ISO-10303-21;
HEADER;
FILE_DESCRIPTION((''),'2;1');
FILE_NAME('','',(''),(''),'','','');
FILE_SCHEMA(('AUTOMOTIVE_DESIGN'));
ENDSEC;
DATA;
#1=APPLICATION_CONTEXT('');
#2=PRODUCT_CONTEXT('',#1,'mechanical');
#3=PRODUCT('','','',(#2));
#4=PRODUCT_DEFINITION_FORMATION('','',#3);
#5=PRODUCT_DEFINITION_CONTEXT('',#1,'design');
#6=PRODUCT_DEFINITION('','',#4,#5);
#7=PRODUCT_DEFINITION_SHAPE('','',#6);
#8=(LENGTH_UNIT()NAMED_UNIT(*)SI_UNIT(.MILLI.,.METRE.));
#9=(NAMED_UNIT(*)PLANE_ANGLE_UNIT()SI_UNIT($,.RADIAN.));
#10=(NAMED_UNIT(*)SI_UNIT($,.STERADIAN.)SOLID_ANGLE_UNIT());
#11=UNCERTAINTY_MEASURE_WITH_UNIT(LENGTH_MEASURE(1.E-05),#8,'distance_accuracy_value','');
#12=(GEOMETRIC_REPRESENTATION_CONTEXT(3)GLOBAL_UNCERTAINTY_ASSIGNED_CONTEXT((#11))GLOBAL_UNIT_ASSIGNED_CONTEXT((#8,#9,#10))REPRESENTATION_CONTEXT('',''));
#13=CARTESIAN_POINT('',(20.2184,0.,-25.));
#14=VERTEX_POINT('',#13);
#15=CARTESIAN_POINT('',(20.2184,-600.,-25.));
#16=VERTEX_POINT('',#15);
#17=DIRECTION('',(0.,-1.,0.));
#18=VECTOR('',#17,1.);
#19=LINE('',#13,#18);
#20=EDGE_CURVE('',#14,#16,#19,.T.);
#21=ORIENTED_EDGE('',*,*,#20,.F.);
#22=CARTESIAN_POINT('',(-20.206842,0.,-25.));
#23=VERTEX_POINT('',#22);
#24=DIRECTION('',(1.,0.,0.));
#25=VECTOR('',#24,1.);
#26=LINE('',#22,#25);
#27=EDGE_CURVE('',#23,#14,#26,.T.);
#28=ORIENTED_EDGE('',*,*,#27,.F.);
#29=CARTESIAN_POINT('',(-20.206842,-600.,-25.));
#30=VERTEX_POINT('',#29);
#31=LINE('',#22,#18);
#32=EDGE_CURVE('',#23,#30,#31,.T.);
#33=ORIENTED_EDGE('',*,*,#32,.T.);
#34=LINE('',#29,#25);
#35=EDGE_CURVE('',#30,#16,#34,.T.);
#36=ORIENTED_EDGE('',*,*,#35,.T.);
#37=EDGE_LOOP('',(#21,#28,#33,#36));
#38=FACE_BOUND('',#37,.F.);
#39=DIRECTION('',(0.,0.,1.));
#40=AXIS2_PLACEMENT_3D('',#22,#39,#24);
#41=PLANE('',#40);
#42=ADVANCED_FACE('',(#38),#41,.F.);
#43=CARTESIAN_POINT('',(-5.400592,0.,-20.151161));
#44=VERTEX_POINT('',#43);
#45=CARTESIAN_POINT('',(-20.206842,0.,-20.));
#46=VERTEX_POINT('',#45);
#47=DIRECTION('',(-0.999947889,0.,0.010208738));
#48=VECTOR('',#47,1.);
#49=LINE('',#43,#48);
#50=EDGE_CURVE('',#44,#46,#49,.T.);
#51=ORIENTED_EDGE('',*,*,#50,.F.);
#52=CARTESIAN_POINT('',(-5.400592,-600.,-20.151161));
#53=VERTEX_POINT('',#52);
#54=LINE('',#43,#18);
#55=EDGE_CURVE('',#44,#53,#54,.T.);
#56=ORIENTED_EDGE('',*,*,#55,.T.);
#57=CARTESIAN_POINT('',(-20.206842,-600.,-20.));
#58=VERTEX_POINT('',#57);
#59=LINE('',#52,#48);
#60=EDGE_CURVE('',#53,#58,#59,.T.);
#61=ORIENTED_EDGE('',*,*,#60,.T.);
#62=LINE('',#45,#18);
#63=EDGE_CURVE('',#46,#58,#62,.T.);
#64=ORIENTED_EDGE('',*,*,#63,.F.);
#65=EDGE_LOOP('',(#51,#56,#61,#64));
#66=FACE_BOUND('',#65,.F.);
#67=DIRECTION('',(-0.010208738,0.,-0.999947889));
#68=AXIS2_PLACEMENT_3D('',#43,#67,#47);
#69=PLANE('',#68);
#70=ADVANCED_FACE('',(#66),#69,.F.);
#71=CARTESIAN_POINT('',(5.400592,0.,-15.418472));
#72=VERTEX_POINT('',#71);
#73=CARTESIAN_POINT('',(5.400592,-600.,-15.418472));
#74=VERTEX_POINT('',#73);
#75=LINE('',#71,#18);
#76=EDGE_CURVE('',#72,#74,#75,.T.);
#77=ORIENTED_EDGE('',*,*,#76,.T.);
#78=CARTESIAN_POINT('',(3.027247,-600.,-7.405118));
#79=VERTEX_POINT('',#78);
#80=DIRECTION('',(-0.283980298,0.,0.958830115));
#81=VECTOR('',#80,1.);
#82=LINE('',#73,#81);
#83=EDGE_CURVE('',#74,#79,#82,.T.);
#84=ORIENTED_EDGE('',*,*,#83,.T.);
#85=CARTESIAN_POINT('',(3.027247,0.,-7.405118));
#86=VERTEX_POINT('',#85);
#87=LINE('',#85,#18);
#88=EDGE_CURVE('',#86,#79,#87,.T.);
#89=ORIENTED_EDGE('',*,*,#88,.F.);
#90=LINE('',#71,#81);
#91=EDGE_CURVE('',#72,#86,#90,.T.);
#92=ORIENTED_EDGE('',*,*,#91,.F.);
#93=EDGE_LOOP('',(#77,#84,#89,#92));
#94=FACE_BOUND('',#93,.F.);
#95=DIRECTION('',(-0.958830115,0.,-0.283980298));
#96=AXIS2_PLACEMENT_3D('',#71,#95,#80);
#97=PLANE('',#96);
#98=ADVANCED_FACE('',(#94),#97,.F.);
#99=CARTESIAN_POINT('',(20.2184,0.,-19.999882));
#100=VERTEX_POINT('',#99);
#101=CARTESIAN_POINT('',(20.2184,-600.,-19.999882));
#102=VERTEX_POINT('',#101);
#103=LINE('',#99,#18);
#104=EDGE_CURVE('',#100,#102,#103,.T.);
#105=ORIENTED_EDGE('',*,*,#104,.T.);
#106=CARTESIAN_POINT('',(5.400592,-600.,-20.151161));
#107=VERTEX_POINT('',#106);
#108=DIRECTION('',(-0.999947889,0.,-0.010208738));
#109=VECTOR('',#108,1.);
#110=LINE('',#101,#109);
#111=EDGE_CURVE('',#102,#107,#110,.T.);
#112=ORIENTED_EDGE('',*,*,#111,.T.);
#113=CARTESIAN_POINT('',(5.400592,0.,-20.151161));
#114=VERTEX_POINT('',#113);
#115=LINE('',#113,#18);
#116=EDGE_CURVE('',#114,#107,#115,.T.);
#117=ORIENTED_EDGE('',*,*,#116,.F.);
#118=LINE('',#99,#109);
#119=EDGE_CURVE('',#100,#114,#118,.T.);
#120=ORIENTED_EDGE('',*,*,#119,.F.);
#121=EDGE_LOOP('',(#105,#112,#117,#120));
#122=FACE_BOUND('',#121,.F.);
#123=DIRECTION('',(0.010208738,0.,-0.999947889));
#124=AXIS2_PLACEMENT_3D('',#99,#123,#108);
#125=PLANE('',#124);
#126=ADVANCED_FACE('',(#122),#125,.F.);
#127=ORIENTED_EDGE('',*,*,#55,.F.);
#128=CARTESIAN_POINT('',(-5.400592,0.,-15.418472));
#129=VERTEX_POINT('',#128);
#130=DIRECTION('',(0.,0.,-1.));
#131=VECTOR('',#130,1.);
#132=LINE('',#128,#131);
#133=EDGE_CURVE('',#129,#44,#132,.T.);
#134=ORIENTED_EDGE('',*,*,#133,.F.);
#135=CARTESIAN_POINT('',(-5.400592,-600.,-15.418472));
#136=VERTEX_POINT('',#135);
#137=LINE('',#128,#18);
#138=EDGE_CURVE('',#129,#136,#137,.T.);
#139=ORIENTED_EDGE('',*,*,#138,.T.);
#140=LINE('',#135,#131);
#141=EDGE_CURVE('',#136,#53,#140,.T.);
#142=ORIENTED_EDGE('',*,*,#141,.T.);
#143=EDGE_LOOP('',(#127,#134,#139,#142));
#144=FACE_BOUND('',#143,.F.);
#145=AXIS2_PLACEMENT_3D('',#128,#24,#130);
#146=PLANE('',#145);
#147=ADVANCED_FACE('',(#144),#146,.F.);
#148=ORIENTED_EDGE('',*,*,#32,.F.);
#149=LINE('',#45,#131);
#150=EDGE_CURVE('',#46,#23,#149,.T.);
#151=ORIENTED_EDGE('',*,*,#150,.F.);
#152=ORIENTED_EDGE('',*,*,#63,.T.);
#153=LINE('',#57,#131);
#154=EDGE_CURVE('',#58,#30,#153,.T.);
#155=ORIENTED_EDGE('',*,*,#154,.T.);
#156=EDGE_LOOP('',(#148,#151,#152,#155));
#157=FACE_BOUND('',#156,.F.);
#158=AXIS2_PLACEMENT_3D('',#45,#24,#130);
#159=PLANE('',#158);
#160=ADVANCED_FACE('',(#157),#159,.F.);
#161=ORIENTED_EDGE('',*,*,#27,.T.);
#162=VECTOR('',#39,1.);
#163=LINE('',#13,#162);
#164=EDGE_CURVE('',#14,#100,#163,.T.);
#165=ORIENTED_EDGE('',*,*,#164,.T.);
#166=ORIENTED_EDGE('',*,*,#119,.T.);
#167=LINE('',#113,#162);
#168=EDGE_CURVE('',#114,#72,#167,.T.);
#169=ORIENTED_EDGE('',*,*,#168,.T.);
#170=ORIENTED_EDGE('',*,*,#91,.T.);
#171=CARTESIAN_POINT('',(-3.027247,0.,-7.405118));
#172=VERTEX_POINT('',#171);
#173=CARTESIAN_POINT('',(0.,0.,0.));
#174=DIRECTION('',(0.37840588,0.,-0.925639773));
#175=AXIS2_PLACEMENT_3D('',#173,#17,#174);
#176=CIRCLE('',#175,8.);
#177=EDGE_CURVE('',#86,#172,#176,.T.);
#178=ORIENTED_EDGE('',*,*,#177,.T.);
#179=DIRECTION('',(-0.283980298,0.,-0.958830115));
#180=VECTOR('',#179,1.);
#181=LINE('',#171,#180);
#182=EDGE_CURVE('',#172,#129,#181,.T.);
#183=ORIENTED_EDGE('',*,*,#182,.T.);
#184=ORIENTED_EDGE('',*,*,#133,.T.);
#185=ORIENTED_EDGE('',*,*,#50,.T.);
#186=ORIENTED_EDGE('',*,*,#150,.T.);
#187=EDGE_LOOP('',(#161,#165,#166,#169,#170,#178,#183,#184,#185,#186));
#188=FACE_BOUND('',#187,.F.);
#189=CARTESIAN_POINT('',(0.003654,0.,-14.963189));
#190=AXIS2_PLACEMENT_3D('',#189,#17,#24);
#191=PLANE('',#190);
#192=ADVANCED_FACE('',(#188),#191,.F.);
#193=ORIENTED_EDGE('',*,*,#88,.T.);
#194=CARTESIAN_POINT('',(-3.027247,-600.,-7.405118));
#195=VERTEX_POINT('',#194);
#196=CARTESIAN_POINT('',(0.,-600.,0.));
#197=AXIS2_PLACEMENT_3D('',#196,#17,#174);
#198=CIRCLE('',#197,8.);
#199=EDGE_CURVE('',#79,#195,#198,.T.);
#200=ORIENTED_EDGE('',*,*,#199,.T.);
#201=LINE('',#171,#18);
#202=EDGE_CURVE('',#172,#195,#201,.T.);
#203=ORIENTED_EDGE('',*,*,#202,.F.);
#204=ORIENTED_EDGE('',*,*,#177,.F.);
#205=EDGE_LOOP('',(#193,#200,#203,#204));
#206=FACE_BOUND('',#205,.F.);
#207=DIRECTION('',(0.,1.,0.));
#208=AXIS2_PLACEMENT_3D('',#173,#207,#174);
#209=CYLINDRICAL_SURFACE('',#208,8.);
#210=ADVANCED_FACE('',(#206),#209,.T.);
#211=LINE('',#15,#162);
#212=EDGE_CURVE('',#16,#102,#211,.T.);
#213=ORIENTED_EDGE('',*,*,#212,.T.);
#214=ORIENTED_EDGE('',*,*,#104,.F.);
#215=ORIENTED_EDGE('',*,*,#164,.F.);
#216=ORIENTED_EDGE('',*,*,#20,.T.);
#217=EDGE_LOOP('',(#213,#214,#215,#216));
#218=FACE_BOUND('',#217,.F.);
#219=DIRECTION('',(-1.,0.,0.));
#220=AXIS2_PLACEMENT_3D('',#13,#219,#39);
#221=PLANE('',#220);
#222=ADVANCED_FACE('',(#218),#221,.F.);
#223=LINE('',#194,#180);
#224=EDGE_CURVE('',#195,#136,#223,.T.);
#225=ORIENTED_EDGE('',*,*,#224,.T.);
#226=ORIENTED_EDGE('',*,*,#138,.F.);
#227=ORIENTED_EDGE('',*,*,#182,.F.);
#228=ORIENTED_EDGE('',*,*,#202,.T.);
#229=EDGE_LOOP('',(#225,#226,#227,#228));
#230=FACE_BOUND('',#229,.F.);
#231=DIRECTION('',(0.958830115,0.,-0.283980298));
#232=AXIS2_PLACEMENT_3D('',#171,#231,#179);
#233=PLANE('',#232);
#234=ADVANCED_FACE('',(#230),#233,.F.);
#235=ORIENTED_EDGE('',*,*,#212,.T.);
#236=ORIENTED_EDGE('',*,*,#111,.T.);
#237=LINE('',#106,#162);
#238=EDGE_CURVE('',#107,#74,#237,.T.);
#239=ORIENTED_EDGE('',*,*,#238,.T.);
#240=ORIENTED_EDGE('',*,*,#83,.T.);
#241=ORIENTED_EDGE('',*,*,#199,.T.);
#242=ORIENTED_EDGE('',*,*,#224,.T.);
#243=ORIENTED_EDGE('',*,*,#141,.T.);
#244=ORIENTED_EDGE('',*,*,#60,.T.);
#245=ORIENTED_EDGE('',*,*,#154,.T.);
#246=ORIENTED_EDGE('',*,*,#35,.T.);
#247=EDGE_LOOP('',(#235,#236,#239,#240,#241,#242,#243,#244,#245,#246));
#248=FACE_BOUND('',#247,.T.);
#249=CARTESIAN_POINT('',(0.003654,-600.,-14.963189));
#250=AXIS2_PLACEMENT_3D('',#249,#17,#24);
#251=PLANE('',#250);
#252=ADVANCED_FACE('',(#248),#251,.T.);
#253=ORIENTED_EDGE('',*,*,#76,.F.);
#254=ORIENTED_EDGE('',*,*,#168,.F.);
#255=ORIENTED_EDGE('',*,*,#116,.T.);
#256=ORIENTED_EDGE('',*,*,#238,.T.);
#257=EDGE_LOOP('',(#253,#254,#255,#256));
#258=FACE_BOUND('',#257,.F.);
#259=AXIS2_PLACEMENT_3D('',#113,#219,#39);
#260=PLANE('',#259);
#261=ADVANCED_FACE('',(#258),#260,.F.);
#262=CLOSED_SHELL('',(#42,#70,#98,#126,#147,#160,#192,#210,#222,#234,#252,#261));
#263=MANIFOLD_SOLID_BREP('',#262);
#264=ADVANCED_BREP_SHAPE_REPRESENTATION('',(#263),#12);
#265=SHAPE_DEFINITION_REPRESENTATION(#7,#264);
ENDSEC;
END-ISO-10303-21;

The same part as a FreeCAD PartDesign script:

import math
import FreeCAD as App
import Part
import Sketcher
from FreeCAD import Vector
Q = App.Units.Quantity

doc = App.newDocument("Part")
params = doc.addObject("Spreadsheet::Sheet", "Params")
for row, (alias, value) in enumerate([
    ("sketch1_radius", "8 mm"),
    ("sketch1_height", "5 mm"),
    ("pad1_length", "600 mm"),
], start=1):
    params.set(f"A{row}", alias)
    params.set(f"B{row}", "=" + value)
    params.setAlias(f"B{row}", alias)

body = doc.addObject("PartDesign::Body", "Body")

# Sketch on XZ plane
sketch1 = body.newObject("Sketcher::SketchObject", "Sketch")
sketch1.AttachmentSupport = (doc.getObject("XZ_Plane"), [""])
sketch1.MapMode = "FlatFace"
sketch1.addGeometry([
    Part.LineSegment(Vector(5.4, -15.4, 0), Vector(3, -7.4, 0)),  # 0
    Part.ArcOfCircle(Part.Circle(Vector(0, 0, 0), Vector(0, 0, 1), 8), math.radians(-68), math.radians(248)),  # 1
    Part.LineSegment(Vector(-3, -7.4, 0), Vector(-5.4, -15.4, 0)),  # 2
    Part.LineSegment(Vector(-5.4, -15.4, 0), Vector(-5.4, -20.2, 0)),  # 3
    Part.LineSegment(Vector(-5.4, -20.2, 0), Vector(-20.2, -20, 0)),  # 4
    Part.LineSegment(Vector(-20.2, -20, 0), Vector(-20.2, -25, 0)),  # 5
    Part.LineSegment(Vector(-20.2, -25, 0), Vector(20.2, -25, 0)),  # 6
    Part.LineSegment(Vector(20.2, -25, 0), Vector(20.2, -20, 0)),  # 7
    Part.LineSegment(Vector(20.2, -20, 0), Vector(5.4, -20.2, 0)),  # 8
    Part.LineSegment(Vector(5.4, -20.2, 0), Vector(5.4, -15.4, 0)),  # 9
], False)
sketch1.addConstraint([
    Sketcher.Constraint("Coincident", 0, 2, 1, 1),
    Sketcher.Constraint("Coincident", 1, 2, 2, 1),
    Sketcher.Constraint("Coincident", 2, 2, 3, 1),
    Sketcher.Constraint("Coincident", 3, 2, 4, 1),
    Sketcher.Constraint("Coincident", 4, 2, 5, 1),
    Sketcher.Constraint("Coincident", 5, 2, 6, 1),
    Sketcher.Constraint("Coincident", 6, 2, 7, 1),
    Sketcher.Constraint("Coincident", 7, 2, 8, 1),
    Sketcher.Constraint("Coincident", 8, 2, 9, 1),
    Sketcher.Constraint("Coincident", 9, 2, 0, 1),
    Sketcher.Constraint("Vertical", 3),
    Sketcher.Constraint("Vertical", 5),
    Sketcher.Constraint("Horizontal", 6),
    Sketcher.Constraint("Vertical", 7),
    Sketcher.Constraint("Vertical", 9),
    Sketcher.Constraint("Coincident", 1, 3, -1, 1),
    Sketcher.Constraint("Symmetric", 3, 2, 8, 2, -2),
    Sketcher.Constraint("Horizontal", 0, 2, 1, 2),
    Sketcher.Constraint("Horizontal", 2, 2, 9, 2),
    Sketcher.Constraint("Radius", 1, Q("8 mm")),
    Sketcher.Constraint("DistanceY", 5, 2, 5, 1, Q("5 mm")),
    Sketcher.Constraint("DistanceY", 4, 2, -1, 1, Q("20 mm")),
    Sketcher.Constraint("DistanceX", 6, 1, 6, 2, Q("40.425242 mm")),
    Sketcher.Constraint("DistanceY", 3, 2, 3, 1, Q("4.732689 mm")),
    Sketcher.Constraint("DistanceY", 7, 1, 7, 2, Q("5.000118 mm")),
    Sketcher.Constraint("DistanceX", -1, 1, 6, 2, Q("20.2184 mm")),
    Sketcher.Constraint("Distance", 0, Q("8.357428 mm")),
    Sketcher.Constraint("Distance", 4, Q("14.807022 mm")),
    Sketcher.Constraint("DistanceY", 3, 2, -1, 1, Q("20.151161 mm")),
])
sketch1.setExpression("Constraints[19]", "Params.sketch1_radius")
sketch1.setExpression("Constraints[20]", "Params.sketch1_height")
pad1 = body.newObject("PartDesign::Pad", "Pad")
pad1.Profile = sketch1
pad1.setExpression("Length", "Params.pad1_length")

doc.recompute()
